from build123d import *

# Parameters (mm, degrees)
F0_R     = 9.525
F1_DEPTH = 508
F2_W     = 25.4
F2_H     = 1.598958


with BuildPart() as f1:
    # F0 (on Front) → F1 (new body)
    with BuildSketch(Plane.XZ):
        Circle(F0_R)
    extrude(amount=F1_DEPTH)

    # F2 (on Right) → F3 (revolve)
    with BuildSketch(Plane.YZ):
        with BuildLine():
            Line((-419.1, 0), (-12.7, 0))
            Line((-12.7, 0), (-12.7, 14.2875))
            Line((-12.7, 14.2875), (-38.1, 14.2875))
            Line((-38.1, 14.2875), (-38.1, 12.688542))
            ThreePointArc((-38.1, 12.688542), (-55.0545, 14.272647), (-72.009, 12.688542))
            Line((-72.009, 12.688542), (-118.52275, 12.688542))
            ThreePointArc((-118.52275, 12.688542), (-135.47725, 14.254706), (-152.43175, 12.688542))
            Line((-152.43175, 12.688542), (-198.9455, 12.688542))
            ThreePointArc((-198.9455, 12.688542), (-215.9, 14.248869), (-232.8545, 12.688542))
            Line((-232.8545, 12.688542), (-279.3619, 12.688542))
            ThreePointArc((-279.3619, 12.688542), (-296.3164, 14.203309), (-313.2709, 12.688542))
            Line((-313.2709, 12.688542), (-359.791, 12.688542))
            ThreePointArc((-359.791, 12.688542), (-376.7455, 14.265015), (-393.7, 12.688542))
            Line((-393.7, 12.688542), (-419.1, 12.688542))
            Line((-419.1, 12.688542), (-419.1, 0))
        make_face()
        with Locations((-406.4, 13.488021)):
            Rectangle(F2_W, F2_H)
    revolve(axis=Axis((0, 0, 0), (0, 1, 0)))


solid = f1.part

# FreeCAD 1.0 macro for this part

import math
import FreeCAD as App
import Part
import Sketcher
from FreeCAD import Vector
Q = App.Units.Quantity

doc = App.newDocument("Part")
body = doc.addObject("PartDesign::Body", "Body")

sketch1 = body.newObject("Sketcher::SketchObject", "Sketch")
sketch1.AttachmentSupport = (doc.getObject("XZ_Plane"), [""])
sketch1.MapMode = "FlatFace"
sketch1.addGeometry(Part.Circle(Vector(0, 0, 0), Vector(0, 0, 1), 10), False)
sketch1.addConstraint([
    Sketcher.Constraint("Coincident", 0, 3, -1, 1),
    Sketcher.Constraint("Diameter", 0, Q("0.75 in")),
])
pad1 = body.newObject("PartDesign::Pad", "Pad")
pad1.Profile = sketch1
pad1.Length = Q("20 in")

sketch2 = body.newObject("Sketcher::SketchObject", "Sketch001")
sketch2.AttachmentSupport = (doc.getObject("YZ_Plane"), [""])
sketch2.MapMode = "FlatFace"
sketch2.addGeometry([
    Part.LineSegment(Vector(-419.1, 0, 0), Vector(-12.7, 0, 0)),
    Part.LineSegment(Vector(-12.7, 0, 0), Vector(-12.7, 14.3, 0)),
    Part.LineSegment(Vector(-12.7, 14.3, 0), Vector(-38.1, 14.3, 0)),
    Part.LineSegment(Vector(-38.1, 14.3, 0), Vector(-38.1, 12.7, 0)),
    Part.ArcOfCircle(Part.Circle(Vector(-55.1, -77.3, 0), Vector(0, 0, 1), 91.5), math.radians(79), math.radians(101)),
    Part.LineSegment(Vector(-72, 12.7, 0), Vector(-118.5, 12.7, 0)),
    Part.ArcOfCircle(Part.Circle(Vector(-135.5, -78.3, 0), Vector(0, 0, 1), 92.6), math.radians(79), math.radians(101)),
    Part.LineSegment(Vector(-152.4, 12.7, 0), Vector(-198.9, 12.7, 0)),
    Part.ArcOfCircle(Part.Circle(Vector(-215.9, -78.6, 0), Vector(0, 0, 1), 92.9), math.radians(79), math.radians(101)),
    Part.LineSegment(Vector(-232.9, 12.7, 0), Vector(-279.4, 12.7, 0)),
    Part.ArcOfCircle(Part.Circle(Vector(-296.3, -81.4, 0), Vector(0, 0, 1), 95.6), math.radians(80), math.radians(100)),
    Part.LineSegment(Vector(-313.3, 12.7, 0), Vector(-359.8, 12.7, 0)),
    Part.ArcOfCircle(Part.Circle(Vector(-376.7, -77.7, 0), Vector(0, 0, 1), 92), math.radians(79), math.radians(101)),
    Part.LineSegment(Vector(-393.7, 12.7, 0), Vector(-393.7, 14.3, 0)),
    Part.LineSegment(Vector(-393.7, 14.3, 0), Vector(-419.1, 14.3, 0)),
    Part.LineSegment(Vector(-419.1, 14.3, 0), Vector(-419.1, 0, 0)),
], False)
sketch2.addConstraint([
    Sketcher.Constraint("Coincident", 0, 2, 1, 1),
    Sketcher.Constraint("Coincident", 1, 2, 2, 1),
    Sketcher.Constraint("Coincident", 2, 2, 3, 1),
    Sketcher.Constraint("Coincident", 3, 2, 4, 1),
    Sketcher.Constraint("Coincident", 4, 2, 5, 1),
    Sketcher.Constraint("Coincident", 5, 2, 6, 1),
    Sketcher.Constraint("Coincident", 6, 2, 7, 1),
    Sketcher.Constraint("Coincident", 7, 2, 8, 1),
    Sketcher.Constraint("Coincident", 8, 2, 9, 1),
    Sketcher.Constraint("Coincident", 9, 2, 10, 1),
    Sketcher.Constraint("Coincident", 10, 2, 11, 1),
    Sketcher.Constraint("Coincident", 11, 2, 12, 1),
    Sketcher.Constraint("Coincident", 12, 2, 13, 1),
    Sketcher.Constraint("Coincident", 13, 2, 14, 1),
    Sketcher.Constraint("Coincident", 14, 2, 15, 1),
    Sketcher.Constraint("Coincident", 15, 2, 0, 1),
    Sketcher.Constraint("Horizontal", 0),
    Sketcher.Constraint("Vertical", 1),
    Sketcher.Constraint("Horizontal", 2),
    Sketcher.Constraint("Vertical", 3),
    Sketcher.Constraint("Horizontal", 5),
    Sketcher.Constraint("Horizontal", 7),
    Sketcher.Constraint("Horizontal", 9),
    Sketcher.Constraint("Horizontal", 11),
    Sketcher.Constraint("Vertical", 13),
    Sketcher.Constraint("Horizontal", 14),
    Sketcher.Constraint("Vertical", 15),
    Sketcher.Constraint("PointOnObject", 0, 2, -1),
    Sketcher.Constraint("Horizontal", 3, 2, 4, 2),
    Sketcher.Constraint("Horizontal", 5, 2, 6, 2),
    Sketcher.Constraint("Horizontal", 7, 2, 8, 2),
    Sketcher.Constraint("Horizontal", 9, 2, 10, 2),
    Sketcher.Constraint("Horizontal", 11, 2, 12, 2),
    Sketcher.Constraint("Horizontal", 2, 2, 13, 2),
    Sketcher.Constraint("Equal", 5, 7),
    Sketcher.Constraint("Equal", 2, 14),
    Sketcher.Constraint("DistanceX", 0, 1, 0, 2, Q("16 in")),
    Sketcher.Constraint("DistanceX", 2, 2, 2, 1, Q("1 in")),
    Sketcher.Constraint("DistanceX", 8, 3, 0, 2, Q("8 in")),
    Sketcher.Constraint("DistanceX", 8, 3, -1, 1, Q("8.5 in")),
    Sketcher.Constraint("DistanceX", 9, 2, 9, 1, Q("1.831 in")),
    Sketcher.Constraint("DistanceY", 1, 1, 1, 2, Q("0.5625 in")),
    Sketcher.Constraint("DistanceX", 11, 2, 11, 1, Q("1.8315 in")),
    Sketcher.Constraint("DistanceX", 10, 3, -1, 1, Q("11.666 in")),
    Sketcher.Constraint("DistanceX", 4, 2, -1, 1, Q("2.835 in")),
    Sketcher.Constraint("DistanceX", 11, 2, -1, 1, Q("14.165 in")),
    Sketcher.Constraint("Radius", 4, Q("91.523118 mm")),
    Sketcher.Constraint("Radius", 8, Q("92.89389 mm")),
    Sketcher.Constraint("Radius", 12, Q("91.958548 mm")),
    Sketcher.Constraint("DistanceX", 6, 2, 5, 2, Q("1.335 in")),
    Sketcher.Constraint("Radius", 6, Q("92.553507 mm")),
    Sketcher.Constraint("Radius", 10, Q("95.641636 mm")),
    Sketcher.Constraint("DistanceY", 6, 3, -1, 1, Q("78.298801 mm")),
])
revolution = body.newObject("PartDesign::Revolution", "Revolution")
revolution.Profile = sketch2
revolution.ReferenceAxis = (sketch2, ["H_Axis"])
revolution.Angle = 360

doc.recompute()
